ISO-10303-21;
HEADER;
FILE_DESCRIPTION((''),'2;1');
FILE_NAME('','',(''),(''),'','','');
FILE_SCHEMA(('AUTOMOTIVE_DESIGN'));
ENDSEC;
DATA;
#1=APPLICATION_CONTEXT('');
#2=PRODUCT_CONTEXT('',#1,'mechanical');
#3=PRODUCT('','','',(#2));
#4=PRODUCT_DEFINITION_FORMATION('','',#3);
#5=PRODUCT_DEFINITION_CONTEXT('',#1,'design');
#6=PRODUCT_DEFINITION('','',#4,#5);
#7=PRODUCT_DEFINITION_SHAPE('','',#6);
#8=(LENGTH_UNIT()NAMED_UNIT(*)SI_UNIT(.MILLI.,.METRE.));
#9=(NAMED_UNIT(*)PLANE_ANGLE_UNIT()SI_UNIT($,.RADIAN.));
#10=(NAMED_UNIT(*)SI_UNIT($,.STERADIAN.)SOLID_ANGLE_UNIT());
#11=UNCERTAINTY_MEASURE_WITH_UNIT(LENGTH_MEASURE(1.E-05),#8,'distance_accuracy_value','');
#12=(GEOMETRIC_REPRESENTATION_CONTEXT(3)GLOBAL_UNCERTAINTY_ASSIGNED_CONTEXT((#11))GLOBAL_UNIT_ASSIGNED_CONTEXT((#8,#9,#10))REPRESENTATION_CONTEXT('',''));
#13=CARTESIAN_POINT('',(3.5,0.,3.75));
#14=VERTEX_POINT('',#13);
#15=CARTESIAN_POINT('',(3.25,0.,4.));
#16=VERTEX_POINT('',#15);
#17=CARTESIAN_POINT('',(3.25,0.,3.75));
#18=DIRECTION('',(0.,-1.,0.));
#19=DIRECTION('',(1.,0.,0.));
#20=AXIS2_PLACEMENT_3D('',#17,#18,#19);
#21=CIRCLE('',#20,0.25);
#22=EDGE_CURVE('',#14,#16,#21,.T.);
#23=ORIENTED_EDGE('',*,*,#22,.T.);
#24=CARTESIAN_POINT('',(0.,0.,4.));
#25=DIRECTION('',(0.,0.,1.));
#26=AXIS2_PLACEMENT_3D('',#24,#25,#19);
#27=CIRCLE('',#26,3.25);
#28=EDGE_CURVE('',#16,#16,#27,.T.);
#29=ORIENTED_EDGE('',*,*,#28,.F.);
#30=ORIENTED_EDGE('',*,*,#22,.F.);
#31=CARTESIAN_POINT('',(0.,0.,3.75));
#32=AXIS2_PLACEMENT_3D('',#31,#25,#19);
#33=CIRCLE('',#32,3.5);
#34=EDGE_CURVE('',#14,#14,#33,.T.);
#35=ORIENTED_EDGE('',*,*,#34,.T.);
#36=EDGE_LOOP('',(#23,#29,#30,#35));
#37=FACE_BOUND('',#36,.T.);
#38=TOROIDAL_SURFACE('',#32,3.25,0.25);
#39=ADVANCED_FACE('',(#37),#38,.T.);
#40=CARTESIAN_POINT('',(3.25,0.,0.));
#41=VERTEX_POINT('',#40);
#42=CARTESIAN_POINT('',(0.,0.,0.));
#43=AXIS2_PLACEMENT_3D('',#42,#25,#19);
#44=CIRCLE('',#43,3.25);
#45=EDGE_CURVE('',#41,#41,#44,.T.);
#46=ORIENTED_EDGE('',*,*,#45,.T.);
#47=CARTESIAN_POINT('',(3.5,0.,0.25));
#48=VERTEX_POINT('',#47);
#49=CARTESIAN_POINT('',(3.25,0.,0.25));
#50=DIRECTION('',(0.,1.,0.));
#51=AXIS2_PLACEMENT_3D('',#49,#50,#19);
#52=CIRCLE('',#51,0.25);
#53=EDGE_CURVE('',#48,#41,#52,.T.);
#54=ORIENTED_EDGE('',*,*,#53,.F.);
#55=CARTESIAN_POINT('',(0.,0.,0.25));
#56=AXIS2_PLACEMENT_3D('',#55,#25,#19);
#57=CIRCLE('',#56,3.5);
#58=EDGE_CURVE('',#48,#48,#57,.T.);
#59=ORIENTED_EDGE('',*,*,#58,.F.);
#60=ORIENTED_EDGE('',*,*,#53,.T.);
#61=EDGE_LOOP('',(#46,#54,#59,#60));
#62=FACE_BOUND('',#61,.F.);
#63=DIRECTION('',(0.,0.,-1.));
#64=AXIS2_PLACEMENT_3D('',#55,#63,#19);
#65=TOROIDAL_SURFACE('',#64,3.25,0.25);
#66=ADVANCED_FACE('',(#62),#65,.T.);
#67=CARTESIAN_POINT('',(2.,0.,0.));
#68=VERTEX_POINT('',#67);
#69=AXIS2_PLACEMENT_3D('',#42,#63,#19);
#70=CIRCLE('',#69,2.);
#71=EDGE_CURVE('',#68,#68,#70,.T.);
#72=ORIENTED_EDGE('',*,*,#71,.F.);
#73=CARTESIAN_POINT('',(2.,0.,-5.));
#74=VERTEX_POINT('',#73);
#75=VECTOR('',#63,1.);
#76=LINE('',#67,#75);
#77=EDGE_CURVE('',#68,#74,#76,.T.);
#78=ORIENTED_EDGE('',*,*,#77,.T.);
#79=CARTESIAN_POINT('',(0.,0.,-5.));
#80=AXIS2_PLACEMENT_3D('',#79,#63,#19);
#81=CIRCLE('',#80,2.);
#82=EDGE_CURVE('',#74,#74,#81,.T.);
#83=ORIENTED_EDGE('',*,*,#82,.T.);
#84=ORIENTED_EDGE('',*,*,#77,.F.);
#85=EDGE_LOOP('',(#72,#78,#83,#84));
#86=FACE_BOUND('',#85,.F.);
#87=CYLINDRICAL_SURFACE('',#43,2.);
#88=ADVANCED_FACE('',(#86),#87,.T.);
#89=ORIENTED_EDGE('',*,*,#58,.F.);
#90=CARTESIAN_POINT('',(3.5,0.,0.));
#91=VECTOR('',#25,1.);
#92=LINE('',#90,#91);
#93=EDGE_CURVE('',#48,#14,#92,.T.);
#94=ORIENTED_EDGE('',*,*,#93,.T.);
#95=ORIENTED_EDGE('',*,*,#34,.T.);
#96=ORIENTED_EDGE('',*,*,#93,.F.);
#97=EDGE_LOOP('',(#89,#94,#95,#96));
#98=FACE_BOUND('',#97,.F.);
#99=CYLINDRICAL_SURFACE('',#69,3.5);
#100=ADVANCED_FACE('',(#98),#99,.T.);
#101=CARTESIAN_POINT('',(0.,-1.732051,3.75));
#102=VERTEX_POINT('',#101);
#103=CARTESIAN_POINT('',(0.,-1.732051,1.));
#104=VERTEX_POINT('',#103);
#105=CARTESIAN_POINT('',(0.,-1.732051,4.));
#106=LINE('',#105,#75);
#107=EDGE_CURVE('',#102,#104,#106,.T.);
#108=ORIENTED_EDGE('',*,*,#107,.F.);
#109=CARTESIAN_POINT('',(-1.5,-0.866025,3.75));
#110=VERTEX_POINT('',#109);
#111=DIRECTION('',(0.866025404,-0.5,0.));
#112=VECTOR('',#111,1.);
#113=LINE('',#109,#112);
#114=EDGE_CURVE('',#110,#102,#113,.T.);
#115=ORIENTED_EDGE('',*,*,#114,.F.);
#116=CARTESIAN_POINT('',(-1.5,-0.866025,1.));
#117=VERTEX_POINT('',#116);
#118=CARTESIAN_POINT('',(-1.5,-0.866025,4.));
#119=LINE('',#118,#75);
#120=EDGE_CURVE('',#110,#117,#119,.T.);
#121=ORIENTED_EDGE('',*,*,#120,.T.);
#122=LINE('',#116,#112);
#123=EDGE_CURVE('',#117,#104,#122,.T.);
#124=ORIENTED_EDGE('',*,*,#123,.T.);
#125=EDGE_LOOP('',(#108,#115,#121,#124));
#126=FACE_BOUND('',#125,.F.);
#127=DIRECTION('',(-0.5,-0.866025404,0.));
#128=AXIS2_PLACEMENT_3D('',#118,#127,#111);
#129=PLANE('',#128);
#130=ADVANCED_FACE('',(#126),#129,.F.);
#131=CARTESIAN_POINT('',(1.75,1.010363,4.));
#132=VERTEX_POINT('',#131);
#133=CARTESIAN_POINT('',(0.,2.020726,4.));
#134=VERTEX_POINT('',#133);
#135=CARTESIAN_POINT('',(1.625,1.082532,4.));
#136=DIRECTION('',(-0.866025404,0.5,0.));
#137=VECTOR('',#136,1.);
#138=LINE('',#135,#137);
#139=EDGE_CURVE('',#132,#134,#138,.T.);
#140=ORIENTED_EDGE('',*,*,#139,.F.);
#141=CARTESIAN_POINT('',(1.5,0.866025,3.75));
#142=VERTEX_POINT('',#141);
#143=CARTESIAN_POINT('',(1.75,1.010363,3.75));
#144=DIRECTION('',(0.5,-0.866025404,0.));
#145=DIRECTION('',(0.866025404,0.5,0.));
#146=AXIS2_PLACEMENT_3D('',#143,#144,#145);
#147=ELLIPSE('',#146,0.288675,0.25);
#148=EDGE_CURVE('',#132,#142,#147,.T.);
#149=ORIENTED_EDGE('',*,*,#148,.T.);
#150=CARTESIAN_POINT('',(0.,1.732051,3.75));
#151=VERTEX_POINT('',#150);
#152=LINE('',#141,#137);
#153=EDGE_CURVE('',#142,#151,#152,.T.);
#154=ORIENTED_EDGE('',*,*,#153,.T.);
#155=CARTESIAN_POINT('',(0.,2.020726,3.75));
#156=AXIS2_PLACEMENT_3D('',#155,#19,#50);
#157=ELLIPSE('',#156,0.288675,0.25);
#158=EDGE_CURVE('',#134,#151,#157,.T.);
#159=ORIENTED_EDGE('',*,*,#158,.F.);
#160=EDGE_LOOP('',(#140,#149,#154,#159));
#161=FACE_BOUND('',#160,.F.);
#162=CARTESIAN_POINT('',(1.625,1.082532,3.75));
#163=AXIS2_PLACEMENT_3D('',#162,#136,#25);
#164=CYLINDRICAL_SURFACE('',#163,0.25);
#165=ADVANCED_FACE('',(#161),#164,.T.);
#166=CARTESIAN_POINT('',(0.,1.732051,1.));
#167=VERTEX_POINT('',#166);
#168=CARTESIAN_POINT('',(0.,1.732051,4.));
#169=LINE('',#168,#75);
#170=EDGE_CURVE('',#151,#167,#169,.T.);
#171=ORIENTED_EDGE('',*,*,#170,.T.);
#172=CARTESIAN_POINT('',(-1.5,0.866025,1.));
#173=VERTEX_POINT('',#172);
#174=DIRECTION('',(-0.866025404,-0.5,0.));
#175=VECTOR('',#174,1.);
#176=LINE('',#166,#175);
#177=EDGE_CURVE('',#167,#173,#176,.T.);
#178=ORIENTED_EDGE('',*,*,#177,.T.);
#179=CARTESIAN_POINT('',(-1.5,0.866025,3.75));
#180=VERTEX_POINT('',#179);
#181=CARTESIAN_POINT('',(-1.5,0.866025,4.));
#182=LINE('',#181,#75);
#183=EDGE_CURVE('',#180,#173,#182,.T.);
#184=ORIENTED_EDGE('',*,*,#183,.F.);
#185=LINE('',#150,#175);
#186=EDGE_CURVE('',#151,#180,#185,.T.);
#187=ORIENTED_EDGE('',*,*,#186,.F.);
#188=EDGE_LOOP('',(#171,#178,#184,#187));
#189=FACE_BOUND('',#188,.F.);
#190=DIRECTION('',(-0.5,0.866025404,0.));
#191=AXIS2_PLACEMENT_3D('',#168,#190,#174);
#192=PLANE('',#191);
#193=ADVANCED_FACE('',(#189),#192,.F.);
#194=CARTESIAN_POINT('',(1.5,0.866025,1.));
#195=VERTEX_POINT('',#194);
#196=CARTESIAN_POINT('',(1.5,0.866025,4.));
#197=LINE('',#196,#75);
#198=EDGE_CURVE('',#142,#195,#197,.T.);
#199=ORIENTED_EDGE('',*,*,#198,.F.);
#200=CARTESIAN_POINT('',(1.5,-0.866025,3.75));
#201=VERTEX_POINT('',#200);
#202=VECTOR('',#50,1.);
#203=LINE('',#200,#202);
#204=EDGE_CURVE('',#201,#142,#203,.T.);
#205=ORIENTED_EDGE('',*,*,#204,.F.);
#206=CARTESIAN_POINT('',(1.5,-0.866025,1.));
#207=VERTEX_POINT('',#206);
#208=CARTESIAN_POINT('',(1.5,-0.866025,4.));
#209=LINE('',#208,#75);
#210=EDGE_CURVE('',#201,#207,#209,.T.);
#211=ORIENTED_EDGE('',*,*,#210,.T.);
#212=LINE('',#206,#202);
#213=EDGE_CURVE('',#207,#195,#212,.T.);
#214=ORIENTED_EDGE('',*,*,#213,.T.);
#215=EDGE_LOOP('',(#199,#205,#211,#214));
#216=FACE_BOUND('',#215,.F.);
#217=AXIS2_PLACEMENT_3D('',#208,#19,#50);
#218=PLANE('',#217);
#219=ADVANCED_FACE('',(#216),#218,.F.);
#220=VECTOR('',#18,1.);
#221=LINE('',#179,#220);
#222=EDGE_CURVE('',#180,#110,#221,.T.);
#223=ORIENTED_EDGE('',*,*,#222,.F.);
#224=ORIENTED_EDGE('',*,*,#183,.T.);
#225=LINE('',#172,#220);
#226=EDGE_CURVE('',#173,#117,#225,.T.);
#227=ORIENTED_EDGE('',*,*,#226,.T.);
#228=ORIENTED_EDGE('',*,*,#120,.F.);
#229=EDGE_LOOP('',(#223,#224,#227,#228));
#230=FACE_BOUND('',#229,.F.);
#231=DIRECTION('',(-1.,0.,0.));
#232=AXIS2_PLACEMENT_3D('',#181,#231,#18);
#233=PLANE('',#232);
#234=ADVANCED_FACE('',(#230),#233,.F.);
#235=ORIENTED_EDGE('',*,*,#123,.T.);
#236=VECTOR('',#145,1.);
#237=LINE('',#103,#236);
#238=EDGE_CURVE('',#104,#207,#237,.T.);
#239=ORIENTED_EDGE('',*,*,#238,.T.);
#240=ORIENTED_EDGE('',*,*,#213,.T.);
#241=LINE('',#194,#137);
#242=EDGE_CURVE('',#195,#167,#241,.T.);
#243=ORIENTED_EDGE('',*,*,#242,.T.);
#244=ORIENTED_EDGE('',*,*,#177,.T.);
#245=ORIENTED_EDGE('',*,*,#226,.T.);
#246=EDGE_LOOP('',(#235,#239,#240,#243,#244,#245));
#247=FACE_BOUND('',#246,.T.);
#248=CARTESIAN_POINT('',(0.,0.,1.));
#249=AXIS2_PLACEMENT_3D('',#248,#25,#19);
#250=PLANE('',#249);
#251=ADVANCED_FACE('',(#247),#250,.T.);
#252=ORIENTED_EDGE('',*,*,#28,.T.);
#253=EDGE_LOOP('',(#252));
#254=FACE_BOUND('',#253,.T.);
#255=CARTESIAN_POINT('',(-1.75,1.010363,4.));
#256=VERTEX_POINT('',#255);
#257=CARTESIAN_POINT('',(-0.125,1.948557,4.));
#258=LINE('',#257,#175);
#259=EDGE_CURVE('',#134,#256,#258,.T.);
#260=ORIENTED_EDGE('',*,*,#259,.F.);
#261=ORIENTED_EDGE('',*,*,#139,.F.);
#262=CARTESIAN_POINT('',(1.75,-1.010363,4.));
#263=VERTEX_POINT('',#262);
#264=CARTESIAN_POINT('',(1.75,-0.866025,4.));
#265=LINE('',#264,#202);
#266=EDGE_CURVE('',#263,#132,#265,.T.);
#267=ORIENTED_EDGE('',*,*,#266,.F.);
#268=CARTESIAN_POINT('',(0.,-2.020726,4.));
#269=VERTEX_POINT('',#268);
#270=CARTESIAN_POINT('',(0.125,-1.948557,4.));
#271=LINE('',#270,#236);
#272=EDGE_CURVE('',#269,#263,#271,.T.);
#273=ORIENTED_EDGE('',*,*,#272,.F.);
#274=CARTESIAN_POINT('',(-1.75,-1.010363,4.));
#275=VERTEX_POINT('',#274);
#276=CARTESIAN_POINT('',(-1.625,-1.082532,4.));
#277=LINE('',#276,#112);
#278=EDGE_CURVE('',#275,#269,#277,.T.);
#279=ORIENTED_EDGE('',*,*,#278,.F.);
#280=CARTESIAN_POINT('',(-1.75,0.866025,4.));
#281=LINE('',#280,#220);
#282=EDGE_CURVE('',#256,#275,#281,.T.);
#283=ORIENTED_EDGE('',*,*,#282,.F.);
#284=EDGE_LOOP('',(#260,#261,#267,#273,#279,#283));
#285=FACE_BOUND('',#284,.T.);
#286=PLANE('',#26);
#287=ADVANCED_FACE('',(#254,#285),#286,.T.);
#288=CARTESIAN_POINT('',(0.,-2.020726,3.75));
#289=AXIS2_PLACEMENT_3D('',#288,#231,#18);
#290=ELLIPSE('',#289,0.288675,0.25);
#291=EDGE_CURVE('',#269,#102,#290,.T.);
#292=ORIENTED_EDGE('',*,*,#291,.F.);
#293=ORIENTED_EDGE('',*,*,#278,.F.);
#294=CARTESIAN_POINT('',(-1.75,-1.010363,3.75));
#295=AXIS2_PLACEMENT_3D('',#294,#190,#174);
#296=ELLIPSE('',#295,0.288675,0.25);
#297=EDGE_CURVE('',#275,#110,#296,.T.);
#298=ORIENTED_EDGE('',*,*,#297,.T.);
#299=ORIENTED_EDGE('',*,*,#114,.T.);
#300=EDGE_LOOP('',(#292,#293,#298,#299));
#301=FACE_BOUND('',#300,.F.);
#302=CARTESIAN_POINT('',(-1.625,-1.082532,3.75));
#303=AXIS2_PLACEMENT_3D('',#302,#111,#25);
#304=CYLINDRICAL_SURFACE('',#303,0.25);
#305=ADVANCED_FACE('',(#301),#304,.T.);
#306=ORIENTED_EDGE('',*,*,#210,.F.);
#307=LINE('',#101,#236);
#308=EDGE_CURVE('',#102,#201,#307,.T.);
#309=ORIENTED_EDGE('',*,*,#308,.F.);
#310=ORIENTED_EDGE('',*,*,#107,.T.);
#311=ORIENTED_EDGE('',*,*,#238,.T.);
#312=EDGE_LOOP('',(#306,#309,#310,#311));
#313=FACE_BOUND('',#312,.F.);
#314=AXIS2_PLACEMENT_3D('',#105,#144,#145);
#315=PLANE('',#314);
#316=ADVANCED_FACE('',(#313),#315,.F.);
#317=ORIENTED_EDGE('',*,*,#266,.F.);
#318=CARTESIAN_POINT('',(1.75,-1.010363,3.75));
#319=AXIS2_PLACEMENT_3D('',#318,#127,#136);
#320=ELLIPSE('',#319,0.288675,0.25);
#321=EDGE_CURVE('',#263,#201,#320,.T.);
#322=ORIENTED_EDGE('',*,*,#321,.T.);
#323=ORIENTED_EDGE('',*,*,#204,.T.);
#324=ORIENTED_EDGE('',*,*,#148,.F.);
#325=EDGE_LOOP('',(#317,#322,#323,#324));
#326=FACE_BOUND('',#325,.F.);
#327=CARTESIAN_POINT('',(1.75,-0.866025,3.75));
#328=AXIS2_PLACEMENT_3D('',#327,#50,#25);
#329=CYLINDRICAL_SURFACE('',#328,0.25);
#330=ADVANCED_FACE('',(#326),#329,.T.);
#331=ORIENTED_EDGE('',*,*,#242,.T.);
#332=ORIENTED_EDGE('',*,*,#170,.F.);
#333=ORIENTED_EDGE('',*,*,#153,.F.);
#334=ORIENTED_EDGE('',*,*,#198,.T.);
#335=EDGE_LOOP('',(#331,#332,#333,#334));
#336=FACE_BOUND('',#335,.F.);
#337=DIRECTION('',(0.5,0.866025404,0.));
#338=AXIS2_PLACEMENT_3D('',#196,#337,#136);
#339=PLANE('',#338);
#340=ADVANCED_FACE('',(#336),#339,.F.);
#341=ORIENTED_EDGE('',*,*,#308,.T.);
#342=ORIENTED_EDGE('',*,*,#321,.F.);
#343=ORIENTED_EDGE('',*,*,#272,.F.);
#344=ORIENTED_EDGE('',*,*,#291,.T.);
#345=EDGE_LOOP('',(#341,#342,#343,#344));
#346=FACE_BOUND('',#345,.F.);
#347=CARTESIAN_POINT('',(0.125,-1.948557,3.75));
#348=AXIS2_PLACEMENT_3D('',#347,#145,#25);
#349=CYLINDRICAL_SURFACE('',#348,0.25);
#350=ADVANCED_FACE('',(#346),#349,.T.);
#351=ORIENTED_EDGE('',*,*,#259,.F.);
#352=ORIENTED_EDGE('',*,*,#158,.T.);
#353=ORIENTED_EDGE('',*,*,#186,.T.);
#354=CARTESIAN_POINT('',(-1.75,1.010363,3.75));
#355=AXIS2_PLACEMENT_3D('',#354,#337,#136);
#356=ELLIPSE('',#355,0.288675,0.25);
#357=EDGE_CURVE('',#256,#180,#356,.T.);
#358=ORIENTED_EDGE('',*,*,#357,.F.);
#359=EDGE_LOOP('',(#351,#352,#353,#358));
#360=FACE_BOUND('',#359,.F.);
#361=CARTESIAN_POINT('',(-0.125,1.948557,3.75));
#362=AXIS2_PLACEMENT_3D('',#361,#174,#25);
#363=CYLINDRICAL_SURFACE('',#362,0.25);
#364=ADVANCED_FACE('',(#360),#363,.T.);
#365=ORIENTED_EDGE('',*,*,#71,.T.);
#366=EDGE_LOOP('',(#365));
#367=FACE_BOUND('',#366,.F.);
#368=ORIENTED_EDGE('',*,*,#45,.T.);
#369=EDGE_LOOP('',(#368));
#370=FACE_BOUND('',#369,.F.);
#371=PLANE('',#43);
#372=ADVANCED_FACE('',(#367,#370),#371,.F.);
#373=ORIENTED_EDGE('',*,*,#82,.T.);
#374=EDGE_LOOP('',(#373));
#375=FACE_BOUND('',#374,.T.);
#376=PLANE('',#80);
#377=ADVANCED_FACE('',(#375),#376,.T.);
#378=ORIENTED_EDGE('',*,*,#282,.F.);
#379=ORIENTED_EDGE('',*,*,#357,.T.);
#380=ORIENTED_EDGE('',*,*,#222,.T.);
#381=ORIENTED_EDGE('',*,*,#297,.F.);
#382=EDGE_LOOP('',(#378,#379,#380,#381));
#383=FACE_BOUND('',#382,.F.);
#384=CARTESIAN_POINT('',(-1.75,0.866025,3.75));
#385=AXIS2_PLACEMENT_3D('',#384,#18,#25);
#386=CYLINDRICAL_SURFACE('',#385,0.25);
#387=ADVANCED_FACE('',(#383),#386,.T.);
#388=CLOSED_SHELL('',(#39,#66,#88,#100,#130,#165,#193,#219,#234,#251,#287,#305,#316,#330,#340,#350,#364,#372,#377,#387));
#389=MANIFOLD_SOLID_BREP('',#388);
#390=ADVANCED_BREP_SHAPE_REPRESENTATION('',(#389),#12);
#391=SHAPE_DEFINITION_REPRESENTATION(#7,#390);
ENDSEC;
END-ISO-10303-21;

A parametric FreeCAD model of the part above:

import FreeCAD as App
import Part
import Sketcher

V = App.Vector
Q = App.Units.Quantity


def edges_at(feature, points):
    """Names of the edges that pass closest to the given points."""
    edges = feature.Shape.Edges
    near = lambda p: min(range(len(edges)), key=lambda i: edges[i].distToShape(Part.Vertex(*p))[0])
    return sorted({f"Edge{near(p) + 1}" for p in points})


def add_polygon(sketch, points):
    """Adds a closed chain of lines whose ends are joined by coincident constraints."""
    first, n = sketch.GeometryCount, len(points)
    for a, b in zip(points, points[1:] + points[:1]):
        sketch.addGeometry(Part.LineSegment(App.Vector(*a, 0), App.Vector(*b, 0)), False)
    for i in range(n):
        sketch.addConstraint(Sketcher.Constraint("Coincident", first + i, 2, first + (i + 1) % n, 1))

doc = App.newDocument("Part")
body = doc.addObject("PartDesign::Body", "Body")

sketch1 = doc.addObject("Sketcher::SketchObject", "Sketch")
body.addObject(sketch1)
sketch1.AttachmentSupport = (doc.XY_Plane, [""])
sketch1.MapMode = "FlatFace"
sketch1.addGeometry(Part.Circle(V(0, 0, 0), V(0, 0, 1), 3.5), False)
sketch1.addConstraint([
    Sketcher.Constraint("Coincident", 0, 3, -1, 1),
    Sketcher.Constraint("Diameter", 0, 7.0),
])
pad1 = doc.addObject("PartDesign::Pad", "Pad")
body.addObject(pad1)
pad1.Profile = sketch1
pad1.Length = 4

sketch2 = doc.addObject("Sketcher::SketchObject", "Sketch001")
body.addObject(sketch2)
sketch2.AttachmentSupport = (doc.XY_Plane, [""])
sketch2.MapMode = "FlatFace"
sketch2.addGeometry(Part.Circle(V(0, 0, 0), V(0, 0, 1), 2), False)
sketch2.addConstraint([
    Sketcher.Constraint("Coincident", 0, 3, -1, 1),
    Sketcher.Constraint("Diameter", 0, 4.0),
])
pad2 = doc.addObject("PartDesign::Pad", "Pad001")
body.addObject(pad2)
pad2.Profile = sketch2
pad2.Length = 5
pad2.Reversed = True

sketch3 = doc.addObject("Sketcher::SketchObject", "Sketch002")
body.addObject(sketch3)
sketch3.AttachmentSupport = (doc.XY_Plane, [""])
sketch3.MapMode = "FlatFace"
sketch3.AttachmentOffset = App.Placement(V(0, 0, 4), App.Rotation())
add_polygon(sketch3, [(1.5, -0.866025), (1.5, 0.866025), (0, 1.732051), (-1.5, 0.866025), (-1.5, -0.866025), (0, -1.732051)])
sketch3.addConstraint([
    Sketcher.Constraint("Vertical", 0),
    Sketcher.Constraint("Vertical", 3),
    Sketcher.Constraint("Symmetric", 0, 2, 3, 2, -1, 1),
    Sketcher.Constraint("Symmetric", 1, 2, 4, 2, -1, 1),
    Sketcher.Constraint("PointOnObject", 1, 2, -2),
    Sketcher.Constraint("Parallel", 2, 5),
    Sketcher.Constraint("Horizontal", 0, 2, 2, 2),
    Sketcher.Constraint("Angle", 1, Q("150 deg")),
    Sketcher.Constraint("DistanceX", 2, 2, 0, 2, 3.0),
    Sketcher.Constraint("DistanceY", 0, 1, 0, 2, 1.732051),
])
pocket1 = doc.addObject("PartDesign::Pocket", "Pocket")
body.addObject(pocket1)
pocket1.Profile = sketch3
pocket1.Length = 3
doc.recompute()

fillet = doc.addObject("PartDesign::Fillet", "Fillet")
body.addObject(fillet)
fillet.Base = (pocket1, edges_at(pocket1, [
    (-3.5, 0, 4),
    (1.5, 0, 4),
    (0.75, 1.299, 4),
    (-0.75, 1.299, 4),
    (-1.5, 0, 4),
    (-0.75, -1.299, 4),
    (0.75, -1.299, 4),
    (-3.5, 0, 0),
]))
fillet.Radius = 0.25

doc.recompute()
